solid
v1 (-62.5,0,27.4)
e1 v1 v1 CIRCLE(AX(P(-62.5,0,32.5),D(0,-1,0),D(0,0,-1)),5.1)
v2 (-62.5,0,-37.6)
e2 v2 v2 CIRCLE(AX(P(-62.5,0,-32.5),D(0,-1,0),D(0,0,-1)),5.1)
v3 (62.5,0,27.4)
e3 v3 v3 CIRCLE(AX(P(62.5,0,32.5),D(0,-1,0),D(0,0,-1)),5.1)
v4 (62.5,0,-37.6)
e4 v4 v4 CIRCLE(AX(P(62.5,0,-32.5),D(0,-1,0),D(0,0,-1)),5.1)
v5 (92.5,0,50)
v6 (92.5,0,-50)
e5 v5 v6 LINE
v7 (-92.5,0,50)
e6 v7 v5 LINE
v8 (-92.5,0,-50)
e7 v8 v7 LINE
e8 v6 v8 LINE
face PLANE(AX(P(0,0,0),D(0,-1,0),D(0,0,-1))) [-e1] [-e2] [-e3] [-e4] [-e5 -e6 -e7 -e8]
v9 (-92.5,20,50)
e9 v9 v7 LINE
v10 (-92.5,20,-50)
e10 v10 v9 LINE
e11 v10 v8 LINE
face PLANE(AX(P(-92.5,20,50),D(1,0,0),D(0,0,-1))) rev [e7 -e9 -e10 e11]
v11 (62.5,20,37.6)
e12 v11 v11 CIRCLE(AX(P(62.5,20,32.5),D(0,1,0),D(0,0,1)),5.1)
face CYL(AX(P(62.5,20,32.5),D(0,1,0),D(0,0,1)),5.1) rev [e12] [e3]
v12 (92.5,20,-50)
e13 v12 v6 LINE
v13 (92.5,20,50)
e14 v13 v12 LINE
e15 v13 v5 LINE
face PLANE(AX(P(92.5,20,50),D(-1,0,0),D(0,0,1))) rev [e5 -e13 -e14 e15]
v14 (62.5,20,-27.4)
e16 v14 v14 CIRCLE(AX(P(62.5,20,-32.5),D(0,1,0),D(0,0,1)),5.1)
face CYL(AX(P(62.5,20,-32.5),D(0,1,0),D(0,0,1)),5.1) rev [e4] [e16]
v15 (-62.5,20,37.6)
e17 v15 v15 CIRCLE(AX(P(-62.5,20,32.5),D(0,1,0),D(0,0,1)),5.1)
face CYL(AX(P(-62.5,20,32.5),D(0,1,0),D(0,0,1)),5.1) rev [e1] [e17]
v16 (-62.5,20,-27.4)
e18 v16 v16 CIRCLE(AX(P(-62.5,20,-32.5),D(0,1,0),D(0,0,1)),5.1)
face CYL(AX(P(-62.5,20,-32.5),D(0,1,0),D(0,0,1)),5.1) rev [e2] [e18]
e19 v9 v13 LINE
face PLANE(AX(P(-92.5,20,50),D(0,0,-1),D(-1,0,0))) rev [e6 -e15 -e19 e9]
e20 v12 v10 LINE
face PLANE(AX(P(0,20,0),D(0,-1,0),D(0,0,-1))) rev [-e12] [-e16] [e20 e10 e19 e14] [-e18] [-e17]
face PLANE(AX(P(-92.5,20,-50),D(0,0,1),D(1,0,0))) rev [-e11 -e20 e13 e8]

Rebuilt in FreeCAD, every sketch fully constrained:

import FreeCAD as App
import Part
import Sketcher
from FreeCAD import Vector
Q = App.Units.Quantity


def add_polygon(sketch, points):
    """Adds a closed chain of lines whose ends are joined by coincident constraints."""
    first, n = sketch.GeometryCount, len(points)
    for a, b in zip(points, points[1:] + points[:1]):
        sketch.addGeometry(Part.LineSegment(App.Vector(*a, 0), App.Vector(*b, 0)), False)
    for i in range(n):
        sketch.addConstraint(Sketcher.Constraint("Coincident", first + i, 2, first + (i + 1) % n, 1))

doc = App.newDocument("Part")
body = doc.addObject("PartDesign::Body", "Body")

# Sketch on XZ plane
sketch1 = doc.addObject("Sketcher::SketchObject", "Sketch")
body.addObject(sketch1)
sketch1.AttachmentSupport = (doc.XZ_Plane, [""])
sketch1.MapMode = "FlatFace"
add_polygon(sketch1, [(-92, -50), (-92, 50), (92, 50), (92, -50)])  # lines 0-3
sketch1.addConstraint(Sketcher.Constraint("Vertical", 0))
sketch1.addConstraint(Sketcher.Constraint("Horizontal", 1))
sketch1.addConstraint(Sketcher.Constraint("Vertical", 2))
sketch1.addConstraint(Sketcher.Constraint("Horizontal", 3))
sketch1.addConstraint(Sketcher.Constraint("Symmetric", 0, 2, 2, 2, -1, 1))
sketch1.addConstraint(Sketcher.Constraint("DistanceX", 1, 1, 1, 2, Q("185 mm")))
sketch1.addConstraint(Sketcher.Constraint("DistanceY", 0, 1, 0, 2, Q("100 mm")))
pad1 = doc.addObject("PartDesign::Pad", "Pad")
body.addObject(pad1)
pad1.Profile = sketch1
pad1.Length = 20
pad1.Reversed = True

# Sketch on XZ plane
sketch2 = doc.addObject("Sketcher::SketchObject", "Sketch001")
body.addObject(sketch2)
sketch2.AttachmentSupport = (doc.XZ_Plane, [""])
sketch2.MapMode = "FlatFace"
sketch2.AttachmentOffset = App.Placement(Vector(0, 0, -20), App.Rotation())
sketch2.addGeometry(Part.Circle(Vector(-62, -32, 0), Vector(0, 0, 1), 5), False)
sketch2.addGeometry(Part.Circle(Vector(62, -32, 0), Vector(0, 0, 1), 5), False)
sketch2.addGeometry(Part.Circle(Vector(62, 32, 0), Vector(0, 0, 1), 5), False)
sketch2.addGeometry(Part.Circle(Vector(-62, 32, 0), Vector(0, 0, 1), 5), False)
sketch2.addConstraint(Sketcher.Constraint("Equal", 0, 1))
sketch2.addConstraint(Sketcher.Constraint("Equal", 1, 2))
sketch2.addConstraint(Sketcher.Constraint("Equal", 2, 3))
sketch2.addConstraint(Sketcher.Constraint("Symmetric", 0, 3, 2, 3, -1, 1))
sketch2.addConstraint(Sketcher.Constraint("Symmetric", 1, 3, 3, 3, -1, 1))
sketch2.addConstraint(Sketcher.Constraint("Symmetric", 0, 3, 1, 3, -2))
sketch2.addConstraint(Sketcher.Constraint("Diameter", 0, Q("10.2 mm")))
sketch2.addConstraint(Sketcher.Constraint("DistanceX", 0, 3, 1, 3, Q("125 mm")))
sketch2.addConstraint(Sketcher.Constraint("DistanceY", 1, 3, 2, 3, Q("65 mm")))
doc.recompute()
hole = doc.addObject("PartDesign::Hole", "Hole")
body.addObject(hole)
hole.Profile = sketch2
hole.ThreadType = "None"
hole.Diameter = 10.2
hole.DepthType = "ThroughAll"
hole.Reversed = True

doc.recompute()
